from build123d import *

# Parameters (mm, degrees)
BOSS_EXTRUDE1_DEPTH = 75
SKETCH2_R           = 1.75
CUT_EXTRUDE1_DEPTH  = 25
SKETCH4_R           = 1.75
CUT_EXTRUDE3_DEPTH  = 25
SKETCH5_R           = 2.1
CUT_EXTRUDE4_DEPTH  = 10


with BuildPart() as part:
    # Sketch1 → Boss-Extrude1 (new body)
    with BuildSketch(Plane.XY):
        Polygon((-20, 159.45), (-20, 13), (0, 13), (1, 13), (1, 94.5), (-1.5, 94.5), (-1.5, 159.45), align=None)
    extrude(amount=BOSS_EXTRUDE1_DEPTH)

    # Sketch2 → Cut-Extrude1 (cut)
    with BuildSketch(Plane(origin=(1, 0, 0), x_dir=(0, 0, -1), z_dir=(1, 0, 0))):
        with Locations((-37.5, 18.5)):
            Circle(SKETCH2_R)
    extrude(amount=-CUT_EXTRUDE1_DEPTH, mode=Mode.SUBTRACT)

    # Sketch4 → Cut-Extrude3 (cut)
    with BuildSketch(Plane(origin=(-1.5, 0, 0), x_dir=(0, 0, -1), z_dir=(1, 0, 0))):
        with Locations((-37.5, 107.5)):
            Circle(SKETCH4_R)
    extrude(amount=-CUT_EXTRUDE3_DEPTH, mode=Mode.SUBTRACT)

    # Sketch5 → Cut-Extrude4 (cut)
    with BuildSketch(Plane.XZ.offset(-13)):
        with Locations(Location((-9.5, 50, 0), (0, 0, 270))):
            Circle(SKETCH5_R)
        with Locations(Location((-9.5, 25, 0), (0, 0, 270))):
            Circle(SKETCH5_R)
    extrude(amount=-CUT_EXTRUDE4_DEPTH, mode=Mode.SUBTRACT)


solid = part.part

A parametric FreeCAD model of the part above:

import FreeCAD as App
import Part
import Sketcher

V = App.Vector
Q = App.Units.Quantity

doc = App.newDocument("Part")
body = doc.addObject("PartDesign::Body", "Body")

sketch1 = body.newObject("Sketcher::SketchObject", "Sketch")
sketch1.AttachmentSupport = (doc.getObject("XY_Plane"), [""])
sketch1.MapMode = "FlatFace"
sketch1.addGeometry([
    Part.LineSegment(V(-20, 159.45, 0), V(-20, 13, 0)),
    Part.LineSegment(V(-20, 13, 0), V(1, 13, 0)),
    Part.LineSegment(V(1, 13, 0), V(1, 94.5, 0)),
    Part.LineSegment(V(1, 94.5, 0), V(-1.5, 94.5, 0)),
    Part.LineSegment(V(-1.5, 94.5, 0), V(-1.5, 159.45, 0)),
    Part.LineSegment(V(-1.5, 159.45, 0), V(-20, 159.45, 0)),
], False)
sketch1.addConstraint([
    Sketcher.Constraint("Coincident", 0, 2, 1, 1),
    Sketcher.Constraint("Coincident", 1, 2, 2, 1),
    Sketcher.Constraint("Coincident", 2, 2, 3, 1),
    Sketcher.Constraint("Coincident", 3, 2, 4, 1),
    Sketcher.Constraint("Coincident", 4, 2, 5, 1),
    Sketcher.Constraint("Coincident", 5, 2, 0, 1),
    Sketcher.Constraint("Vertical", 0),
    Sketcher.Constraint("Horizontal", 1),
    Sketcher.Constraint("Vertical", 2),
    Sketcher.Constraint("Horizontal", 3),
    Sketcher.Constraint("Vertical", 4),
    Sketcher.Constraint("Horizontal", 5),
    Sketcher.Constraint("DistanceX", 1, 1, 1, 2, Q("21 mm")),
    Sketcher.Constraint("DistanceX", 3, 2, 3, 1, Q("2.5 mm")),
    Sketcher.Constraint("DistanceY", 2, 1, 2, 2, Q("81.5 mm")),
    Sketcher.Constraint("DistanceX", 0, 2, -1, 1, Q("20 mm")),
    Sketcher.Constraint("DistanceY", -1, 1, 0, 2, Q("13 mm")),
    Sketcher.Constraint("DistanceY", 0, 2, 0, 1, Q("146.45 mm")),
])
pad1 = body.newObject("PartDesign::Pad", "Pad")
pad1.Profile = sketch1
pad1.Length = 75

sketch2 = body.newObject("Sketcher::SketchObject", "Sketch001")
sketch2.AttachmentSupport = (doc.getObject("YZ_Plane"), [""])
sketch2.MapMode = "FlatFace"
sketch2.AttachmentOffset = App.Placement(V(0, 0, 1), App.Rotation())
sketch2.addGeometry(Part.Circle(V(18.5, 37.5, 0), V(0, 0, 1), 1.75), False)
sketch2.addConstraint([
    Sketcher.Constraint("Diameter", 0, Q("3.5 mm")),
    Sketcher.Constraint("DistanceX", -1, 1, 0, 3, Q("18.5 mm")),
    Sketcher.Constraint("DistanceY", -1, 1, 0, 3, Q("37.5 mm")),
])
pocket1 = body.newObject("PartDesign::Pocket", "Pocket")
pocket1.Profile = sketch2
pocket1.Length = 25

sketch3 = body.newObject("Sketcher::SketchObject", "Sketch002")
sketch3.AttachmentSupport = (doc.getObject("YZ_Plane"), [""])
sketch3.MapMode = "FlatFace"
sketch3.AttachmentOffset = App.Placement(V(0, 0, -1.5), App.Rotation())
sketch3.addGeometry(Part.Circle(V(107.5, 37.5, 0), V(0, 0, 1), 1.75), False)
sketch3.addConstraint([
    Sketcher.Constraint("Diameter", 0, Q("3.5 mm")),
    Sketcher.Constraint("DistanceX", -1, 1, 0, 3, Q("107.5 mm")),
    Sketcher.Constraint("DistanceY", -1, 1, 0, 3, Q("37.5 mm")),
])
pocket2 = body.newObject("PartDesign::Pocket", "Pocket001")
pocket2.Profile = sketch3
pocket2.Length = 25

sketch4 = body.newObject("Sketcher::SketchObject", "Sketch003")
sketch4.AttachmentSupport = (doc.getObject("XZ_Plane"), [""])
sketch4.MapMode = "FlatFace"
sketch4.AttachmentOffset = App.Placement(V(0, 0, -13), App.Rotation())
sketch4.addGeometry([
    Part.Circle(V(-9.5, 50, 0), V(0, 0, 1), 2.1),
    Part.Circle(V(-9.5, 25, 0), V(0, 0, 1), 2.1),
], False)
sketch4.addConstraint([
    Sketcher.Constraint("Equal", 0, 1),
    Sketcher.Constraint("Vertical", 0, 3, 1, 3),
    Sketcher.Constraint("Diameter", 0, Q("4.2 mm")),
    Sketcher.Constraint("DistanceY", -1, 1, 0, 3, Q("50 mm")),
    Sketcher.Constraint("DistanceY", -1, 1, 1, 3, Q("25 mm")),
    Sketcher.Constraint("DistanceX", 0, 3, -1, 1, Q("9.5 mm")),
])
pocket3 = body.newObject("PartDesign::Pocket", "Pocket002")
pocket3.Profile = sketch4
pocket3.Length = 10

doc.recompute()
